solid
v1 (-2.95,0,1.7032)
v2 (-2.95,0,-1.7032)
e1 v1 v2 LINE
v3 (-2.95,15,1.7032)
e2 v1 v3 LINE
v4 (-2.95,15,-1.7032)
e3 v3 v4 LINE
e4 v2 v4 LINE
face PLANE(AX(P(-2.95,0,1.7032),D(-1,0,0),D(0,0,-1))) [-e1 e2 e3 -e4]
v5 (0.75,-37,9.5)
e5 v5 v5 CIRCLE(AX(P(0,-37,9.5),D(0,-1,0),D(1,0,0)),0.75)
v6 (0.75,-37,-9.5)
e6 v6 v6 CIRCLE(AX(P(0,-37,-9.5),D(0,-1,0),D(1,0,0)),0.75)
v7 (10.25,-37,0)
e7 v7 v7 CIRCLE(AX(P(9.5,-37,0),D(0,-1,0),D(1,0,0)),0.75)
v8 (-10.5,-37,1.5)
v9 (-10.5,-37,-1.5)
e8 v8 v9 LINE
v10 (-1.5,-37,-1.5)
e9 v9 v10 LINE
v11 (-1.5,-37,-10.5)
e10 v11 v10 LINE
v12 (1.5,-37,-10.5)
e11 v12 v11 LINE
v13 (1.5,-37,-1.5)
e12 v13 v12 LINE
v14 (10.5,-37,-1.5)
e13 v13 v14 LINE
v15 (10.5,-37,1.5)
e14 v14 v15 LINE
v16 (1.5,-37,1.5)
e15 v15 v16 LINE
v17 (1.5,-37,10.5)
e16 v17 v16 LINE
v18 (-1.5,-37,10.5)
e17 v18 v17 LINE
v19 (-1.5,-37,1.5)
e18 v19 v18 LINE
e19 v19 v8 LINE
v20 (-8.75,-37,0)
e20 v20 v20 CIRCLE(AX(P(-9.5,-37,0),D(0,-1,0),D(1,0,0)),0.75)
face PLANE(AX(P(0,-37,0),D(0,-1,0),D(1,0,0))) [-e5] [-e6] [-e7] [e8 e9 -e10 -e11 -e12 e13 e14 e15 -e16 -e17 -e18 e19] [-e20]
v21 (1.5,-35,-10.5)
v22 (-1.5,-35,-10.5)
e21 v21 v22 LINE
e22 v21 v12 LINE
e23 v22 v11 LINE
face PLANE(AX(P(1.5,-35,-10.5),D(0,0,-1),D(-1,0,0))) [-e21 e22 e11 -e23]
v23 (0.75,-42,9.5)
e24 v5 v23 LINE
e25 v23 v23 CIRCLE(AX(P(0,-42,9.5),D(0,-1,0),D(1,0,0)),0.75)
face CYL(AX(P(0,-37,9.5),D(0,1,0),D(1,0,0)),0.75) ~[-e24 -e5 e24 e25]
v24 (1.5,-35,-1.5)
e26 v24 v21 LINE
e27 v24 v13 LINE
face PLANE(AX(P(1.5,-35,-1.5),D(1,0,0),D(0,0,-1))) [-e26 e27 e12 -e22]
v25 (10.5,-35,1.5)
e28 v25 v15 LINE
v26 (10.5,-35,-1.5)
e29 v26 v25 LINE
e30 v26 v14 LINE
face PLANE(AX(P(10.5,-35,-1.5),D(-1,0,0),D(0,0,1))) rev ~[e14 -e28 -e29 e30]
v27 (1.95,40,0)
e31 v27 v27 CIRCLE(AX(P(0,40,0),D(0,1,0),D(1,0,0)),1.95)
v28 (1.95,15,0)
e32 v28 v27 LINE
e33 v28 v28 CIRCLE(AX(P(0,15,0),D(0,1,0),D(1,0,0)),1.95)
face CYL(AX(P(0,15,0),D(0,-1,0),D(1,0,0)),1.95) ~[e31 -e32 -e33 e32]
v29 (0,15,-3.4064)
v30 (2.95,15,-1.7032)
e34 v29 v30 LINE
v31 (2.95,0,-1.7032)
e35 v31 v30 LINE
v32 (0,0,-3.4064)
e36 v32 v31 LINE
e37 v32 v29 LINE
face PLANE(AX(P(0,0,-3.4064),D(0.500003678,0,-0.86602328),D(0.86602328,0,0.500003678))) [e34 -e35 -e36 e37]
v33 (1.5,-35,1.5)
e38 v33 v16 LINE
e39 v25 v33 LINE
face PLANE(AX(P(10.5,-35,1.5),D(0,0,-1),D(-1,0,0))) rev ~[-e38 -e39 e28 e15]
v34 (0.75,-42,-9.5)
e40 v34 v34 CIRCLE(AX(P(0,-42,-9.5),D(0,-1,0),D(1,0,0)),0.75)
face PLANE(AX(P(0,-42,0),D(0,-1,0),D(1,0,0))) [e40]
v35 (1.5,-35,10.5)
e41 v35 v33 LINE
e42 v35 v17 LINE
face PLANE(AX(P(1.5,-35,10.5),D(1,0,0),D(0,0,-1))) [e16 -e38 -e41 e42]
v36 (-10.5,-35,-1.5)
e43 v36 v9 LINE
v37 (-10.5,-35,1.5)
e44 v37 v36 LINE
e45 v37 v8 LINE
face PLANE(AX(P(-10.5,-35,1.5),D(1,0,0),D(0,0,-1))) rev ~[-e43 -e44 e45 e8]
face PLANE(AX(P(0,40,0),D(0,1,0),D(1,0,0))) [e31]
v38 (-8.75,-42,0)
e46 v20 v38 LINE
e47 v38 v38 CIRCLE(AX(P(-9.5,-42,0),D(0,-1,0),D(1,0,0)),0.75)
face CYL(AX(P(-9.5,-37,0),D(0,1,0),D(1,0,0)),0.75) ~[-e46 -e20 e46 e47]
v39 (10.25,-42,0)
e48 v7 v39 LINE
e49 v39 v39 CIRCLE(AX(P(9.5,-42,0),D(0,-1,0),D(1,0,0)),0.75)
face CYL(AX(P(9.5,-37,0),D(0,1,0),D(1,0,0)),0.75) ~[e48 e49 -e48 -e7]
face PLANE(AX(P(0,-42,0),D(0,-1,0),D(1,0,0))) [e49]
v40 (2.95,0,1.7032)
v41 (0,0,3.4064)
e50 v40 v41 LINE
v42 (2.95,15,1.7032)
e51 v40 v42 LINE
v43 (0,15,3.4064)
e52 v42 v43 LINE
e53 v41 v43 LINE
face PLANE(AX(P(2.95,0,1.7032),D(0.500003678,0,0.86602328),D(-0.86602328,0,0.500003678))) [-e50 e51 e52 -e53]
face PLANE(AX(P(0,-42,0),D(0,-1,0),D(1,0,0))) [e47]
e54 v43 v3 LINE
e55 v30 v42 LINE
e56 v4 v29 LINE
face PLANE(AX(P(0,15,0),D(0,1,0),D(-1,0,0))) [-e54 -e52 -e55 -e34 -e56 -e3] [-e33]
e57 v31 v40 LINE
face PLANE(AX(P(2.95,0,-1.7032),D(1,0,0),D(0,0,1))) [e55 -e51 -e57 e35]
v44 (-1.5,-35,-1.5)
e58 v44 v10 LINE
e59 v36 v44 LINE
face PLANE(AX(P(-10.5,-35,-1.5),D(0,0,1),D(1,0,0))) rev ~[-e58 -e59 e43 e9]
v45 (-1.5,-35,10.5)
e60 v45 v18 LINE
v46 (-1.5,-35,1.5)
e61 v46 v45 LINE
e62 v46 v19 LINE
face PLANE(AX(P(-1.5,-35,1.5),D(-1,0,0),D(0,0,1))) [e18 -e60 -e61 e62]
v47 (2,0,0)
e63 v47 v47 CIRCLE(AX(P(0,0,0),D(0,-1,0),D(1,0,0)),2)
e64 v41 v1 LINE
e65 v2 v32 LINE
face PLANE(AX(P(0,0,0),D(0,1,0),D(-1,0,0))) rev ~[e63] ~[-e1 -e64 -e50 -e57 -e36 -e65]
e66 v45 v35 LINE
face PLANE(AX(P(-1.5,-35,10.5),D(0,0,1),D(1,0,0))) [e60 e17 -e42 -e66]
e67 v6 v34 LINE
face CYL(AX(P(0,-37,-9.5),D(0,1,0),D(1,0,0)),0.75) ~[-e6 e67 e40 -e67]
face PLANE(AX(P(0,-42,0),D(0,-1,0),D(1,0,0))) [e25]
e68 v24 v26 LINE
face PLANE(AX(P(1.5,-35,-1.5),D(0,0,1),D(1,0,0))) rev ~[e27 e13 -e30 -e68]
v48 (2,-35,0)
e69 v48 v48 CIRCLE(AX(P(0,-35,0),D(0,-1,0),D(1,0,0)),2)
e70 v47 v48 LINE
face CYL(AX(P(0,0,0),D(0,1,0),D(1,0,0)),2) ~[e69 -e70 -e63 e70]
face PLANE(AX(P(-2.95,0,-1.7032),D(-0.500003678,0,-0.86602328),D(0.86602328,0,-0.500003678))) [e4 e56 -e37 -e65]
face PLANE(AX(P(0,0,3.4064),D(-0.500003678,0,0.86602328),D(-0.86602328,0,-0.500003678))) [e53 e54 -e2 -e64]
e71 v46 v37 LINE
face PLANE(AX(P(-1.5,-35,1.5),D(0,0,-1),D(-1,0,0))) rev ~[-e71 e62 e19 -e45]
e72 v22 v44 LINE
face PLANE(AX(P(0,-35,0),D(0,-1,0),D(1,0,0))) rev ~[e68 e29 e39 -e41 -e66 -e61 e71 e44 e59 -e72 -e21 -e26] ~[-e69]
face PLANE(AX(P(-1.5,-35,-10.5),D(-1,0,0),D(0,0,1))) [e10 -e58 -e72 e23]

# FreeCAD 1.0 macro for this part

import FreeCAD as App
import Part
import Sketcher
from FreeCAD import Vector
Q = App.Units.Quantity

doc = App.newDocument("Part")
body = doc.addObject("PartDesign::Body", "Body")

# Sketch on XZ plane
sketch1 = body.newObject("Sketcher::SketchObject", "Sketch")
sketch1.AttachmentSupport = (doc.getObject("XZ_Plane"), [""])
sketch1.MapMode = "FlatFace"
sketch1.addGeometry([
    Part.LineSegment(Vector(0, -3.4, 0), Vector(-3, -1.7, 0)),  # 0
    Part.LineSegment(Vector(-3, -1.7, 0), Vector(-3, 1.7, 0)),  # 1
    Part.LineSegment(Vector(-3, 1.7, 0), Vector(0, 3.4, 0)),  # 2
    Part.LineSegment(Vector(0, 3.4, 0), Vector(3, 1.7, 0)),  # 3
    Part.LineSegment(Vector(3, 1.7, 0), Vector(3, -1.7, 0)),  # 4
    Part.LineSegment(Vector(3, -1.7, 0), Vector(0, -3.4, 0)),  # 5
], False)
sketch1.addConstraint([
    Sketcher.Constraint("Coincident", 0, 2, 1, 1),
    Sketcher.Constraint("Coincident", 1, 2, 2, 1),
    Sketcher.Constraint("Coincident", 2, 2, 3, 1),
    Sketcher.Constraint("Coincident", 3, 2, 4, 1),
    Sketcher.Constraint("Coincident", 4, 2, 5, 1),
    Sketcher.Constraint("Coincident", 5, 2, 0, 1),
    Sketcher.Constraint("Vertical", 1),
    Sketcher.Constraint("Vertical", 4),
    Sketcher.Constraint("Symmetric", 0, 2, 3, 2, -1, 1),
    Sketcher.Constraint("Symmetric", 2, 2, 5, 2, -1, 1),
    Sketcher.Constraint("PointOnObject", 2, 2, -2),
    Sketcher.Constraint("Parallel", 2, 5),
    Sketcher.Constraint("Horizontal", 1, 2, 3, 2),
    Sketcher.Constraint("Angle", 0, Q("149.9998 deg")),
    Sketcher.Constraint("DistanceX", 1, 2, 3, 2, Q("5.9 mm")),
    Sketcher.Constraint("DistanceY", 1, 1, 1, 2, Q("3.4064 mm")),
])
pad1 = body.newObject("PartDesign::Pad", "Pad")
pad1.Profile = sketch1
pad1.Length = 15
pad1.Reversed = True

# Sketch on XZ plane
sketch2 = body.newObject("Sketcher::SketchObject", "Sketch001")
sketch2.AttachmentSupport = (doc.getObject("XZ_Plane"), [""])
sketch2.MapMode = "FlatFace"
sketch2.AttachmentOffset = App.Placement(Vector(0, 0, -15), App.Rotation())
sketch2.addGeometry(Part.Circle(Vector(0, 0, 0), Vector(0, 0, 1), 1.9), False)
sketch2.addConstraint([
    Sketcher.Constraint("Coincident", 0, 3, -1, 1),
    Sketcher.Constraint("Diameter", 0, Q("3.9 mm")),
])
pad2 = body.newObject("PartDesign::Pad", "Pad001")
pad2.Profile = sketch2
pad2.Length = 25
pad2.Reversed = True

# Sketch on XZ plane
sketch3 = body.newObject("Sketcher::SketchObject", "Sketch002")
sketch3.AttachmentSupport = (doc.getObject("XZ_Plane"), [""])
sketch3.MapMode = "FlatFace"
sketch3.addGeometry(Part.Circle(Vector(0, 0, 0), Vector(0, 0, 1), 2), False)
sketch3.addConstraint([
    Sketcher.Constraint("Coincident", 0, 3, -1, 1),
    Sketcher.Constraint("Diameter", 0, Q("4 mm")),
])
pad3 = body.newObject("PartDesign::Pad", "Pad002")
pad3.Profile = sketch3
pad3.Length = 35

# Sketch on XZ plane
sketch4 = body.newObject("Sketcher::SketchObject", "Sketch003")
sketch4.AttachmentSupport = (doc.getObject("XZ_Plane"), [""])
sketch4.MapMode = "FlatFace"
sketch4.AttachmentOffset = App.Placement(Vector(0, 0, 35), App.Rotation())
sketch4.addGeometry([
    Part.LineSegment(Vector(1.5, -1.5, 0), Vector(10.5, -1.5, 0)),  # 0
    Part.LineSegment(Vector(10.5, -1.5, 0), Vector(10.5, 1.5, 0)),  # 1
    Part.LineSegment(Vector(10.5, 1.5, 0), Vector(1.5, 1.5, 0)),  # 2
    Part.LineSegment(Vector(1.5, 1.5, 0), Vector(1.5, 10.5, 0)),  # 3
    Part.LineSegment(Vector(1.5, 10.5, 0), Vector(-1.5, 10.5, 0)),  # 4
    Part.LineSegment(Vector(-1.5, 10.5, 0), Vector(-1.5, 1.5, 0)),  # 5
    Part.LineSegment(Vector(-1.5, 1.5, 0), Vector(-10.5, 1.5, 0)),  # 6
    Part.LineSegment(Vector(-10.5, 1.5, 0), Vector(-10.5, -1.5, 0)),  # 7
    Part.LineSegment(Vector(-10.5, -1.5, 0), Vector(-1.5, -1.5, 0)),  # 8
    Part.LineSegment(Vector(-1.5, -1.5, 0), Vector(-1.5, -10.5, 0)),  # 9
    Part.LineSegment(Vector(-1.5, -10.5, 0), Vector(1.5, -10.5, 0)),  # 10
    Part.LineSegment(Vector(1.5, -10.5, 0), Vector(1.5, -1.5, 0)),  # 11
], False)
sketch4.addConstraint([
    Sketcher.Constraint("Coincident", 0, 2, 1, 1),
    Sketcher.Constraint("Coincident", 1, 2, 2, 1),
    Sketcher.Constraint("Coincident", 2, 2, 3, 1),
    Sketcher.Constraint("Coincident", 3, 2, 4, 1),
    Sketcher.Constraint("Coincident", 4, 2, 5, 1),
    Sketcher.Constraint("Coincident", 5, 2, 6, 1),
    Sketcher.Constraint("Coincident", 6, 2, 7, 1),
    Sketcher.Constraint("Coincident", 7, 2, 8, 1),
    Sketcher.Constraint("Coincident", 8, 2, 9, 1),
    Sketcher.Constraint("Coincident", 9, 2, 10, 1),
    Sketcher.Constraint("Coincident", 10, 2, 11, 1),
    Sketcher.Constraint("Coincident", 11, 2, 0, 1),
    Sketcher.Constraint("Horizontal", 0),
    Sketcher.Constraint("Vertical", 1),
    Sketcher.Constraint("Horizontal", 2),
    Sketcher.Constraint("Vertical", 3),
    Sketcher.Constraint("Horizontal", 4),
    Sketcher.Constraint("Vertical", 5),
    Sketcher.Constraint("Horizontal", 6),
    Sketcher.Constraint("Vertical", 7),
    Sketcher.Constraint("Horizontal", 8),
    Sketcher.Constraint("Vertical", 9),
    Sketcher.Constraint("Horizontal", 10),
    Sketcher.Constraint("Vertical", 11),
    Sketcher.Constraint("Symmetric", 0, 2, 6, 2, -1, 1),
    Sketcher.Constraint("Symmetric", 2, 2, 8, 2, -1, 1),
    Sketcher.Constraint("Symmetric", 4, 2, 10, 2, -1, 1),
    Sketcher.Constraint("Symmetric", 2, 2, 5, 2, -2),
    Sketcher.Constraint("Equal", 10, 1),
    Sketcher.Constraint("Equal", 8, 3),
    Sketcher.Constraint("DistanceX", 6, 2, 1, 2, Q("21 mm")),
    Sketcher.Constraint("DistanceX", 0, 1, 0, 2, Q("9 mm")),
])
pad4 = body.newObject("PartDesign::Pad", "Pad003")
pad4.Profile = sketch4
pad4.Length = 2

# Sketch on XZ plane
sketch5 = body.newObject("Sketcher::SketchObject", "Sketch004")
sketch5.AttachmentSupport = (doc.getObject("XZ_Plane"), [""])
sketch5.MapMode = "FlatFace"
sketch5.AttachmentOffset = App.Placement(Vector(0, 0, 37), App.Rotation())
sketch5.addGeometry([
    Part.Circle(Vector(0, 9.5, 0), Vector(0, 0, 1), 0.8),
    Part.Circle(Vector(-9.5, 0, 0), Vector(0, 0, 1), 0.8),
    Part.Circle(Vector(0, -9.5, 0), Vector(0, 0, 1), 0.8),
    Part.Circle(Vector(9.5, 0, 0), Vector(0, 0, 1), 0.8),
], False)
sketch5.addConstraint([
    Sketcher.Constraint("Equal", 0, 1),
    Sketcher.Constraint("Equal", 1, 2),
    Sketcher.Constraint("Equal", 2, 3),
    Sketcher.Constraint("Symmetric", 0, 3, 2, 3, -1, 1),
    Sketcher.Constraint("Symmetric", 1, 3, 3, 3, -1, 1),
    Sketcher.Constraint("PointOnObject", 0, 3, -2),
    Sketcher.Constraint("PointOnObject", 1, 3, -1),
    Sketcher.Constraint("Diameter", 0, Q("1.5 mm")),
    Sketcher.Constraint("DistanceY", 2, 3, 0, 3, Q("19 mm")),
    Sketcher.Constraint("DistanceX", 1, 3, 3, 3, Q("19 mm")),
])
pad5 = body.newObject("PartDesign::Pad", "Pad004")
pad5.Profile = sketch5
pad5.Length = 5

doc.recompute()
